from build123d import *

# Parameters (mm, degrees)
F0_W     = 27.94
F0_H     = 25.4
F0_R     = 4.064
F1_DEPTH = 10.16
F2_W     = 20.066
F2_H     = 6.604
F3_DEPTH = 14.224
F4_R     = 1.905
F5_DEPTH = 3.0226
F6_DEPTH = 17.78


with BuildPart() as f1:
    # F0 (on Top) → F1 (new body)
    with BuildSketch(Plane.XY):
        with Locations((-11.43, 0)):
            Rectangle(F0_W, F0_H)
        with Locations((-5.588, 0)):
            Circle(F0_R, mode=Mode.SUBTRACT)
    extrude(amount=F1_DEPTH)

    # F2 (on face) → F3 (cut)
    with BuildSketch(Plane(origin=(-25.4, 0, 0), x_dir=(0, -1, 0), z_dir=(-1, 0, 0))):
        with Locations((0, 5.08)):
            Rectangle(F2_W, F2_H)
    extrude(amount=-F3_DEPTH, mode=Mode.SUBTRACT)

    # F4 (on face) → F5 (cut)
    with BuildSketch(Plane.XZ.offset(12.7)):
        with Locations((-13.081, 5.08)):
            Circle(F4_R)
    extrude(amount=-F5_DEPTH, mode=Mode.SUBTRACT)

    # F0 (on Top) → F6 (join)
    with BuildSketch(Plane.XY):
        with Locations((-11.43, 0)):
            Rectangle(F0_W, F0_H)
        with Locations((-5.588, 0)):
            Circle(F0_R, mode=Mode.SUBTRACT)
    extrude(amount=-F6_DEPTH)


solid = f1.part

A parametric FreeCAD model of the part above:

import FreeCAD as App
import Part
import Sketcher

V = App.Vector
Q = App.Units.Quantity

doc = App.newDocument("Part")
body = doc.addObject("PartDesign::Body", "Body")

# Sketch on XY plane
sketch1 = body.newObject("Sketcher::SketchObject", "Sketch")
sketch1.AttachmentSupport = (doc.getObject("XY_Plane"), [""])
sketch1.MapMode = "FlatFace"
sketch1.addGeometry(Part.LineSegment(V(-25.4, 12.7, 0), V(-25.4, -12.7, 0)), False)
sketch1.addGeometry(Part.LineSegment(V(-25.4, -12.7, 0), V(2.54, -12.7, 0)), False)
sketch1.addGeometry(Part.LineSegment(V(2.54, -12.7, 0), V(2.54, 12.7, 0)), False)
sketch1.addGeometry(Part.LineSegment(V(2.54, 12.7, 0), V(-25.4, 12.7, 0)), False)
sketch1.addGeometry(Part.Circle(V(-5.588, 0, 0), V(0, 0, 1), 4.064), False)
sketch1.addConstraint(Sketcher.Constraint("Coincident", 0, 2, 1, 1))
sketch1.addConstraint(Sketcher.Constraint("Coincident", 1, 2, 2, 1))
sketch1.addConstraint(Sketcher.Constraint("Coincident", 2, 2, 3, 1))
sketch1.addConstraint(Sketcher.Constraint("Coincident", 3, 2, 0, 1))
sketch1.addConstraint(Sketcher.Constraint("Vertical", 0))
sketch1.addConstraint(Sketcher.Constraint("Horizontal", 1))
sketch1.addConstraint(Sketcher.Constraint("Vertical", 2))
sketch1.addConstraint(Sketcher.Constraint("Horizontal", 3))
sketch1.addConstraint(Sketcher.Constraint("PointOnObject", 4, 3, -1))
sketch1.addConstraint(Sketcher.Constraint("Diameter", 4, Q("0.32 in")))
sketch1.addConstraint(Sketcher.Constraint("DistanceY", 0, 2, 0, 1, Q("1 in")))
sketch1.addConstraint(Sketcher.Constraint("DistanceX", 1, 1, 1, 2, Q("1.1 in")))
sketch1.addConstraint(Sketcher.Constraint("DistanceX", 0, 2, -1, 1, Q("1 in")))
sketch1.addConstraint(Sketcher.Constraint("DistanceY", 0, 2, -1, 1, Q("0.5 in")))
sketch1.addConstraint(Sketcher.Constraint("DistanceX", 4, 3, -1, 1, Q("0.22 in")))
pad1 = body.newObject("PartDesign::Pad", "Pad")
pad1.Profile = sketch1
pad1.Length = Q("0.4 in")

# Sketch on YZ plane
sketch2 = body.newObject("Sketcher::SketchObject", "Sketch001")
sketch2.AttachmentSupport = (doc.getObject("YZ_Plane"), [""])
sketch2.MapMode = "FlatFace"
sketch2.AttachmentOffset = App.Placement(V(0, 0, -1 * 25.4), App.Rotation())
sketch2.addGeometry(Part.LineSegment(V(10.033, 8.382, 0), V(10.033, 1.778, 0)), False)
sketch2.addGeometry(Part.LineSegment(V(10.033, 1.778, 0), V(-10.033, 1.778, 0)), False)
sketch2.addGeometry(Part.LineSegment(V(-10.033, 1.778, 0), V(-10.033, 8.382, 0)), False)
sketch2.addGeometry(Part.LineSegment(V(-10.033, 8.382, 0), V(10.033, 8.382, 0)), False)
sketch2.addConstraint(Sketcher.Constraint("Coincident", 0, 2, 1, 1))
sketch2.addConstraint(Sketcher.Constraint("Coincident", 1, 2, 2, 1))
sketch2.addConstraint(Sketcher.Constraint("Coincident", 2, 2, 3, 1))
sketch2.addConstraint(Sketcher.Constraint("Coincident", 3, 2, 0, 1))
sketch2.addConstraint(Sketcher.Constraint("Vertical", 0))
sketch2.addConstraint(Sketcher.Constraint("Horizontal", 1))
sketch2.addConstraint(Sketcher.Constraint("Vertical", 2))
sketch2.addConstraint(Sketcher.Constraint("Horizontal", 3))
sketch2.addConstraint(Sketcher.Constraint("DistanceX", 1, 2, 1, 1, Q("0.79 in")))
sketch2.addConstraint(Sketcher.Constraint("DistanceY", 0, 2, 0, 1, Q("0.26 in")))
sketch2.addConstraint(Sketcher.Constraint("DistanceY", -1, 1, 0, 2, Q("0.07 in")))
sketch2.addConstraint(Sketcher.Constraint("DistanceX", -1, 1, 0, 2, Q("0.395 in")))
pocket1 = body.newObject("PartDesign::Pocket", "Pocket")
pocket1.Profile = sketch2
pocket1.Length = Q("0.56 in")
pocket1.Reversed = True

# Sketch on XZ plane
sketch3 = body.newObject("Sketcher::SketchObject", "Sketch002")
sketch3.AttachmentSupport = (doc.getObject("XZ_Plane"), [""])
sketch3.MapMode = "FlatFace"
sketch3.AttachmentOffset = App.Placement(V(0, 0, 0.5 * 25.4), App.Rotation())
sketch3.addGeometry(Part.Circle(V(-13.081, 5.08, 0), V(0, 0, 1), 1.905), False)
sketch3.addConstraint(Sketcher.Constraint("Diameter", 0, Q("0.15 in")))
sketch3.addConstraint(Sketcher.Constraint("DistanceY", -1, 1, 0, 3, Q("0.2 in")))
sketch3.addConstraint(Sketcher.Constraint("DistanceX", 0, 3, -1, 1, Q("0.515 in")))
pocket2 = body.newObject("PartDesign::Pocket", "Pocket001")
pocket2.Profile = sketch3
pocket2.Length = Q("0.119 in")

# Sketch on XY plane
sketch4 = body.newObject("Sketcher::SketchObject", "Sketch003")
sketch4.AttachmentSupport = (doc.getObject("XY_Plane"), [""])
sketch4.MapMode = "FlatFace"
sketch4.addGeometry(Part.LineSegment(V(-25.4, 12.7, 0), V(-25.4, -12.7, 0)), False)
sketch4.addGeometry(Part.LineSegment(V(-25.4, -12.7, 0), V(2.54, -12.7, 0)), False)
sketch4.addGeometry(Part.LineSegment(V(2.54, -12.7, 0), V(2.54, 12.7, 0)), False)
sketch4.addGeometry(Part.LineSegment(V(2.54, 12.7, 0), V(-25.4, 12.7, 0)), False)
sketch4.addGeometry(Part.Circle(V(-5.588, 0, 0), V(0, 0, 1), 4.064), False)
sketch4.addConstraint(Sketcher.Constraint("Coincident", 0, 2, 1, 1))
sketch4.addConstraint(Sketcher.Constraint("Coincident", 1, 2, 2, 1))
sketch4.addConstraint(Sketcher.Constraint("Coincident", 2, 2, 3, 1))
sketch4.addConstraint(Sketcher.Constraint("Coincident", 3, 2, 0, 1))
sketch4.addConstraint(Sketcher.Constraint("Vertical", 0))
sketch4.addConstraint(Sketcher.Constraint("Horizontal", 1))
sketch4.addConstraint(Sketcher.Constraint("Vertical", 2))
sketch4.addConstraint(Sketcher.Constraint("Horizontal", 3))
sketch4.addConstraint(Sketcher.Constraint("PointOnObject", 4, 3, -1))
sketch4.addConstraint(Sketcher.Constraint("Diameter", 4, Q("0.32 in")))
sketch4.addConstraint(Sketcher.Constraint("DistanceY", 0, 2, 0, 1, Q("1 in")))
sketch4.addConstraint(Sketcher.Constraint("DistanceX", 1, 1, 1, 2, Q("1.1 in")))
sketch4.addConstraint(Sketcher.Constraint("DistanceX", 0, 2, -1, 1, Q("1 in")))
sketch4.addConstraint(Sketcher.Constraint("DistanceY", 0, 2, -1, 1, Q("0.5 in")))
sketch4.addConstraint(Sketcher.Constraint("DistanceX", 4, 3, -1, 1, Q("0.22 in")))
pad2 = body.newObject("PartDesign::Pad", "Pad001")
pad2.Profile = sketch4
pad2.Length = Q("0.7 in")
pad2.Reversed = True

doc.recompute()
